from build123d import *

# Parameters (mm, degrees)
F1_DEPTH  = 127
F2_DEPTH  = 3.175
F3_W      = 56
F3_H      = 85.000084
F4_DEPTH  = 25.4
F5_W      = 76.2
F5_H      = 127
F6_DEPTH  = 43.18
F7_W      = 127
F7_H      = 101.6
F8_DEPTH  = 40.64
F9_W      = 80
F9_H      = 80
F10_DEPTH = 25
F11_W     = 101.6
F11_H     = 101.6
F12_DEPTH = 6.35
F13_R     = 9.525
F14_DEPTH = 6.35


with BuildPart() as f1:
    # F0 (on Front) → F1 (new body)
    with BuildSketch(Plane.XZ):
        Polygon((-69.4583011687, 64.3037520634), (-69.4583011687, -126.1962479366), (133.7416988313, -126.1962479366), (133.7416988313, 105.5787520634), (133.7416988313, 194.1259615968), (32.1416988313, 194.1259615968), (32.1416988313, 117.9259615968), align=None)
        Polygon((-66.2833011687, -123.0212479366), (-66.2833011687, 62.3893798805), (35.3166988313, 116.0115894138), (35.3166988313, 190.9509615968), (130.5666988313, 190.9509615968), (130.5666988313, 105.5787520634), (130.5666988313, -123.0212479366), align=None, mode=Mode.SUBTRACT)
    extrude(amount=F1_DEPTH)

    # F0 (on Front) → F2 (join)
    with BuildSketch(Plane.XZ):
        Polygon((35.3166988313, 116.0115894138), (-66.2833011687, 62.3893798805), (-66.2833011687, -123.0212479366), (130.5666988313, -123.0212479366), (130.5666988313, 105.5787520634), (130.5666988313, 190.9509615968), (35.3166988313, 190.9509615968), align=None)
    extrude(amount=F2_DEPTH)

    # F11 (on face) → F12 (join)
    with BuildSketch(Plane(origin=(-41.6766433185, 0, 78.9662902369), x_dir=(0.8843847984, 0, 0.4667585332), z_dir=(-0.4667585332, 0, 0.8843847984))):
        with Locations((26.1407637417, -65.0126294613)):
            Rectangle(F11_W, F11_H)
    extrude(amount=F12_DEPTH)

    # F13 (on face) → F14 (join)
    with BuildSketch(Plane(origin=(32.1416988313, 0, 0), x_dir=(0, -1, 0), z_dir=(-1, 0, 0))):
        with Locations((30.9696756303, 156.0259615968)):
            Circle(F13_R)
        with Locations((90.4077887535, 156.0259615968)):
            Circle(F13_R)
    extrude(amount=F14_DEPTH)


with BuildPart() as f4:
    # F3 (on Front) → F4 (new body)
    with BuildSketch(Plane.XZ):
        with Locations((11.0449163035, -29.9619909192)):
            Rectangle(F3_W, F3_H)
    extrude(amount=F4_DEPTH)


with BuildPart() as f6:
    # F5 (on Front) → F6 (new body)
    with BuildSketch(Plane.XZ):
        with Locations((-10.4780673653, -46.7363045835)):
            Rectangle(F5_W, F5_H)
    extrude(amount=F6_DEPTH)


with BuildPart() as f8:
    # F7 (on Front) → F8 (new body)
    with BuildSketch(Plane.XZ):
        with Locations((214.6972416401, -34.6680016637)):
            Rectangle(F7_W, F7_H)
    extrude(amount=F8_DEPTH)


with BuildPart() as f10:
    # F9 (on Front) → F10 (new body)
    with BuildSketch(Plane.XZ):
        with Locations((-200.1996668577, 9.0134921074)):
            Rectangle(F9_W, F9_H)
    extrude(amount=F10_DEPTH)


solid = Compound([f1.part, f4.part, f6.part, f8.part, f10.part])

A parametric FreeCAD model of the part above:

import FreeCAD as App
import Part
import Sketcher

V = App.Vector
Q = App.Units.Quantity

doc = App.newDocument("Part")
body = doc.addObject("PartDesign::Body", "Body")

# Sketch on XZ plane
sketch1 = body.newObject("Sketcher::SketchObject", "Sketch")
sketch1.AttachmentSupport = (doc.getObject("XZ_Plane"), [""])
sketch1.MapMode = "FlatFace"
sketch1.addGeometry([
    Part.LineSegment(V(-69.458301, 64.303752, 0), V(-69.458301, -126.196248, 0)),  # 0
    Part.LineSegment(V(-69.458301, -126.196248, 0), V(133.741699, -126.196248, 0)),  # 1
    Part.LineSegment(V(133.741699, -126.196248, 0), V(133.741699, 194.125962, 0)),  # 2
    Part.LineSegment(V(133.741699, 194.125962, 0), V(32.141699, 194.125962, 0)),  # 3
    Part.LineSegment(V(32.141699, 194.125962, 0), V(32.141699, 117.925962, 0)),  # 4
    Part.LineSegment(V(32.141699, 117.925962, 0), V(-69.458301, 64.303752, 0)),  # 5
    Part.LineSegment(V(130.566699, -123.021248, 0), V(-66.283301, -123.021248, 0)),  # 6
    Part.LineSegment(V(-66.283301, -123.021248, 0), V(-66.283301, 62.38938, 0)),  # 7
    Part.LineSegment(V(-66.283301, 62.38938, 0), V(35.316699, 116.011589, 0)),  # 8
    Part.LineSegment(V(35.316699, 116.011589, 0), V(35.316699, 190.950962, 0)),  # 9
    Part.LineSegment(V(35.316699, 190.950962, 0), V(130.566699, 190.950962, 0)),  # 10
    Part.LineSegment(V(130.566699, 190.950962, 0), V(130.566699, -123.021248, 0)),  # 11
], False)
sketch1.addConstraint([
    Sketcher.Constraint("Coincident", 0, 2, 1, 1),
    Sketcher.Constraint("Coincident", 1, 2, 2, 1),
    Sketcher.Constraint("Coincident", 2, 2, 3, 1),
    Sketcher.Constraint("Coincident", 3, 2, 4, 1),
    Sketcher.Constraint("Coincident", 4, 2, 5, 1),
    Sketcher.Constraint("Coincident", 5, 2, 0, 1),
    Sketcher.Constraint("Coincident", 6, 2, 7, 1),
    Sketcher.Constraint("Coincident", 7, 2, 8, 1),
    Sketcher.Constraint("Coincident", 8, 2, 9, 1),
    Sketcher.Constraint("Coincident", 9, 2, 10, 1),
    Sketcher.Constraint("Coincident", 10, 2, 11, 1),
    Sketcher.Constraint("Coincident", 11, 2, 6, 1),
    Sketcher.Constraint("Vertical", 0),
    Sketcher.Constraint("Horizontal", 1),
    Sketcher.Constraint("Vertical", 2),
    Sketcher.Constraint("Horizontal", 3),
    Sketcher.Constraint("Vertical", 4),
    Sketcher.Constraint("Horizontal", 6),
    Sketcher.Constraint("Vertical", 7),
    Sketcher.Constraint("Vertical", 9),
    Sketcher.Constraint("Horizontal", 10),
    Sketcher.Constraint("Vertical", 11),
    Sketcher.Constraint("Parallel", 5, 8),
    Sketcher.Constraint("Equal", 5, 8),
    Sketcher.Constraint("DistanceX", 1, 1, 1, 2, Q("8 in")),
    Sketcher.Constraint("DistanceX", 3, 2, 3, 1, Q("4 in")),
    Sketcher.Constraint("DistanceY", 4, 2, 4, 1, Q("3 in")),
    Sketcher.Constraint("DistanceY", 0, 2, 0, 1, Q("7.5 in")),
    Sketcher.Constraint("DistanceX", 6, 2, 6, 1, Q("7.75 in")),
    Sketcher.Constraint("DistanceX", 0, 2, 6, 2, Q("0.125 in")),
    Sketcher.Constraint("DistanceY", 0, 2, 6, 2, Q("0.125 in")),
    Sketcher.Constraint("DistanceY", 9, 2, 3, 2, Q("0.125 in")),
    Sketcher.Constraint("DistanceY", 2, 1, 2, 2, Q("320.32221 mm")),
    Sketcher.Constraint("DistanceX", 0, 2, -1, 1, Q("69.458301 mm")),
    Sketcher.Constraint("DistanceY", 7, 1, 7, 2, Q("185.410628 mm")),
    Sketcher.Constraint("DistanceY", -1, 1, 2, 2, Q("194.125962 mm")),
])
pad1 = body.newObject("PartDesign::Pad", "Pad")
pad1.Profile = sketch1
pad1.Length = Q("5 in")

# Sketch on XZ plane
sketch2 = body.newObject("Sketcher::SketchObject", "Sketch001")
sketch2.AttachmentSupport = (doc.getObject("XZ_Plane"), [""])
sketch2.MapMode = "FlatFace"
sketch2.addGeometry([
    Part.LineSegment(V(35.316699, 116.011589, 0), V(-66.283301, 62.38938, 0)),  # 0
    Part.LineSegment(V(-66.283301, 62.38938, 0), V(-66.283301, -123.021248, 0)),  # 1
    Part.LineSegment(V(-66.283301, -123.021248, 0), V(130.566699, -123.021248, 0)),  # 2
    Part.LineSegment(V(130.566699, -123.021248, 0), V(130.566699, 190.950962, 0)),  # 3
    Part.LineSegment(V(130.566699, 190.950962, 0), V(35.316699, 190.950962, 0)),  # 4
    Part.LineSegment(V(35.316699, 190.950962, 0), V(35.316699, 116.011589, 0)),  # 5
], False)
sketch2.addConstraint([
    Sketcher.Constraint("Coincident", 0, 2, 1, 1),
    Sketcher.Constraint("Coincident", 1, 2, 2, 1),
    Sketcher.Constraint("Coincident", 2, 2, 3, 1),
    Sketcher.Constraint("Coincident", 3, 2, 4, 1),
    Sketcher.Constraint("Coincident", 4, 2, 5, 1),
    Sketcher.Constraint("Coincident", 5, 2, 0, 1),
    Sketcher.Constraint("Vertical", 1),
    Sketcher.Constraint("Horizontal", 2),
    Sketcher.Constraint("Vertical", 3),
    Sketcher.Constraint("Horizontal", 4),
    Sketcher.Constraint("Vertical", 5),
    Sketcher.Constraint("DistanceX", 0, 2, 4, 2, Q("4 in")),
    Sketcher.Constraint("DistanceX", 2, 1, 2, 2, Q("7.75 in")),
    Sketcher.Constraint("DistanceY", 3, 1, 3, 2, Q("313.97221 mm")),
    Sketcher.Constraint("DistanceX", 0, 2, -1, 1, Q("66.283301 mm")),
    Sketcher.Constraint("Distance", 0, Q("114.882119 mm")),
    Sketcher.Constraint("DistanceY", 1, 2, 1, 1, Q("185.410628 mm")),
    Sketcher.Constraint("DistanceY", -1, 1, 0, 2, Q("62.38938 mm")),
])
pad2 = body.newObject("PartDesign::Pad", "Pad001")
pad2.Profile = sketch2
pad2.Length = Q("0.125 in")

# Sketch on an angled plane
sketch3 = body.newObject("Sketcher::SketchObject", "Sketch002")
sketch3.Placement = App.Placement(V(-41.676643, 0, 78.96629), App.Rotation(V(0.884384798, 0, 0.466758533), V(0, 0.999999999, 0), V(-0.466758533, 0, 0.884384798), "ZXY"))
sketch3.addGeometry([
    Part.LineSegment(V(-24.659236, -14.212629, 0), V(-24.659236, -115.812629, 0)),
    Part.LineSegment(V(-24.659236, -115.812629, 0), V(76.940764, -115.812629, 0)),
    Part.LineSegment(V(76.940764, -115.812629, 0), V(76.940764, -14.212629, 0)),
    Part.LineSegment(V(76.940764, -14.212629, 0), V(-24.659236, -14.212629, 0)),
], False)
sketch3.addConstraint([
    Sketcher.Constraint("Coincident", 0, 2, 1, 1),
    Sketcher.Constraint("Coincident", 1, 2, 2, 1),
    Sketcher.Constraint("Coincident", 2, 2, 3, 1),
    Sketcher.Constraint("Coincident", 3, 2, 0, 1),
    Sketcher.Constraint("Vertical", 0),
    Sketcher.Constraint("Horizontal", 1),
    Sketcher.Constraint("Vertical", 2),
    Sketcher.Constraint("Horizontal", 3),
    Sketcher.Constraint("Equal", 3, 0),
    Sketcher.Constraint("DistanceX", 1, 1, 1, 2, Q("4 in")),
    Sketcher.Constraint("DistanceY", 0, 2, -1, 1, Q("115.812629 mm")),
    Sketcher.Constraint("DistanceX", 0, 2, -1, 1, Q("24.659236 mm")),
])
pad3 = body.newObject("PartDesign::Pad", "Pad002")
pad3.Profile = sketch3
pad3.Length = Q("0.25 in")

# Sketch on YZ plane
sketch4 = body.newObject("Sketcher::SketchObject", "Sketch003")
sketch4.AttachmentSupport = (doc.getObject("YZ_Plane"), [""])
sketch4.MapMode = "FlatFace"
sketch4.AttachmentOffset = App.Placement(V(0, 0, 32.141699), App.Rotation())
sketch4.addGeometry([
    Part.Circle(V(-30.969676, 156.025962, 0), V(0, 0, 1), 9.525),
    Part.Circle(V(-90.407789, 156.025962, 0), V(0, 0, 1), 9.525),
], False)
sketch4.addConstraint([
    Sketcher.Constraint("Equal", 0, 1),
    Sketcher.Constraint("Horizontal", 0, 3, 1, 3),
    Sketcher.Constraint("Diameter", 0, Q("0.75 in")),
    Sketcher.Constraint("DistanceY", -1, 1, 0, 3, Q("156.025962 mm")),
    Sketcher.Constraint("DistanceX", 1, 3, -1, 1, Q("90.407789 mm")),
    Sketcher.Constraint("DistanceX", 0, 3, -1, 1, Q("30.969676 mm")),
])
pad4 = body.newObject("PartDesign::Pad", "Pad003")
pad4.Profile = sketch4
pad4.Length = Q("0.25 in")
pad4.Reversed = True
body2 = doc.addObject("PartDesign::Body", "Body001")

# Sketch on XZ plane
sketch5 = body2.newObject("Sketcher::SketchObject", "Sketch004")
sketch5.AttachmentSupport = (doc.getObject("XZ_Plane001"), [""])
sketch5.MapMode = "FlatFace"
sketch5.addGeometry([
    Part.LineSegment(V(-16.955084, 12.538051, 0), V(-16.955084, -72.462033, 0)),
    Part.LineSegment(V(-16.955084, -72.462033, 0), V(39.044916, -72.462033, 0)),
    Part.LineSegment(V(39.044916, -72.462033, 0), V(39.044916, 12.538051, 0)),
    Part.LineSegment(V(39.044916, 12.538051, 0), V(-16.955084, 12.538051, 0)),
], False)
sketch5.addConstraint([
    Sketcher.Constraint("Coincident", 0, 2, 1, 1),
    Sketcher.Constraint("Coincident", 1, 2, 2, 1),
    Sketcher.Constraint("Coincident", 2, 2, 3, 1),
    Sketcher.Constraint("Coincident", 3, 2, 0, 1),
    Sketcher.Constraint("Vertical", 0),
    Sketcher.Constraint("Horizontal", 1),
    Sketcher.Constraint("Vertical", 2),
    Sketcher.Constraint("Horizontal", 3),
    Sketcher.Constraint("DistanceX", 1, 1, 1, 2, Q("56 mm")),
    Sketcher.Constraint("DistanceY", 0, 2, 0, 1, Q("85.000084 mm")),
    Sketcher.Constraint("DistanceY", -1, 1, 2, 2, Q("12.538051 mm")),
    Sketcher.Constraint("DistanceX", 0, 2, -1, 1, Q("16.955084 mm")),
])
pad5 = body2.newObject("PartDesign::Pad", "Pad004")
pad5.Profile = sketch5
pad5.Length = Q("1 in")
body3 = doc.addObject("PartDesign::Body", "Body002")

# Sketch on XZ plane
sketch6 = body3.newObject("Sketcher::SketchObject", "Sketch005")
sketch6.AttachmentSupport = (doc.getObject("XZ_Plane002"), [""])
sketch6.MapMode = "FlatFace"
sketch6.addGeometry([
    Part.LineSegment(V(-48.578067, 16.763695, 0), V(-48.578067, -110.236305, 0)),
    Part.LineSegment(V(-48.578067, -110.236305, 0), V(27.621933, -110.236305, 0)),
    Part.LineSegment(V(27.621933, -110.236305, 0), V(27.621933, 16.763695, 0)),
    Part.LineSegment(V(27.621933, 16.763695, 0), V(-48.578067, 16.763695, 0)),
], False)
sketch6.addConstraint([
    Sketcher.Constraint("Coincident", 0, 2, 1, 1),
    Sketcher.Constraint("Coincident", 1, 2, 2, 1),
    Sketcher.Constraint("Coincident", 2, 2, 3, 1),
    Sketcher.Constraint("Coincident", 3, 2, 0, 1),
    Sketcher.Constraint("Vertical", 0),
    Sketcher.Constraint("Horizontal", 1),
    Sketcher.Constraint("Vertical", 2),
    Sketcher.Constraint("Horizontal", 3),
    Sketcher.Constraint("DistanceX", 1, 1, 1, 2, Q("3 in")),
    Sketcher.Constraint("DistanceY", 0, 2, 0, 1, Q("5 in")),
    Sketcher.Constraint("DistanceX", 0, 2, -1, 1, Q("48.578067 mm")),
    Sketcher.Constraint("DistanceY", 0, 2, -1, 1, Q("110.236305 mm")),
])
pad6 = body3.newObject("PartDesign::Pad", "Pad005")
pad6.Profile = sketch6
pad6.Length = Q("1.7 in")
body4 = doc.addObject("PartDesign::Body", "Body003")

# Sketch on XZ plane
sketch7 = body4.newObject("Sketcher::SketchObject", "Sketch006")
sketch7.AttachmentSupport = (doc.getObject("XZ_Plane003"), [""])
sketch7.MapMode = "FlatFace"
sketch7.addGeometry([
    Part.LineSegment(V(151.197242, 16.131998, 0), V(151.197242, -85.468002, 0)),
    Part.LineSegment(V(151.197242, -85.468002, 0), V(278.197242, -85.468002, 0)),
    Part.LineSegment(V(278.197242, -85.468002, 0), V(278.197242, 16.131998, 0)),
    Part.LineSegment(V(278.197242, 16.131998, 0), V(151.197242, 16.131998, 0)),
], False)
sketch7.addConstraint([
    Sketcher.Constraint("Coincident", 0, 2, 1, 1),
    Sketcher.Constraint("Coincident", 1, 2, 2, 1),
    Sketcher.Constraint("Coincident", 2, 2, 3, 1),
    Sketcher.Constraint("Coincident", 3, 2, 0, 1),
    Sketcher.Constraint("Vertical", 0),
    Sketcher.Constraint("Horizontal", 1),
    Sketcher.Constraint("Vertical", 2),
    Sketcher.Constraint("Horizontal", 3),
    Sketcher.Constraint("DistanceX", 1, 1, 1, 2, Q("5 in")),
    Sketcher.Constraint("DistanceY", 0, 2, 0, 1, Q("4 in")),
    Sketcher.Constraint("DistanceY", 0, 2, -1, 1, Q("85.468002 mm")),
    Sketcher.Constraint("DistanceX", -1, 1, 0, 2, Q("151.197242 mm")),
])
pad7 = body4.newObject("PartDesign::Pad", "Pad006")
pad7.Profile = sketch7
pad7.Length = Q("1.6 in")
body5 = doc.addObject("PartDesign::Body", "Body004")

# Sketch on XZ plane
sketch8 = body5.newObject("Sketcher::SketchObject", "Sketch007")
sketch8.AttachmentSupport = (doc.getObject("XZ_Plane004"), [""])
sketch8.MapMode = "FlatFace"
sketch8.addGeometry([
    Part.LineSegment(V(-240.199667, 49.013492, 0), V(-240.199667, -30.986508, 0)),
    Part.LineSegment(V(-240.199667, -30.986508, 0), V(-160.199667, -30.986508, 0)),
    Part.LineSegment(V(-160.199667, -30.986508, 0), V(-160.199667, 49.013492, 0)),
    Part.LineSegment(V(-160.199667, 49.013492, 0), V(-240.199667, 49.013492, 0)),
], False)
sketch8.addConstraint([
    Sketcher.Constraint("Coincident", 0, 2, 1, 1),
    Sketcher.Constraint("Coincident", 1, 2, 2, 1),
    Sketcher.Constraint("Coincident", 2, 2, 3, 1),
    Sketcher.Constraint("Coincident", 3, 2, 0, 1),
    Sketcher.Constraint("Vertical", 0),
    Sketcher.Constraint("Horizontal", 1),
    Sketcher.Constraint("Vertical", 2),
    Sketcher.Constraint("Horizontal", 3),
    Sketcher.Constraint("Equal", 3, 0),
    Sketcher.Constraint("DistanceX", 1, 1, 1, 2, Q("80 mm")),
    Sketcher.Constraint("DistanceX", 0, 2, -1, 1, Q("240.199667 mm")),
    Sketcher.Constraint("DistanceY", 0, 2, -1, 1, Q("30.986508 mm")),
])
pad8 = body5.newObject("PartDesign::Pad", "Pad007")
pad8.Profile = sketch8
pad8.Length = 25

doc.recompute()
